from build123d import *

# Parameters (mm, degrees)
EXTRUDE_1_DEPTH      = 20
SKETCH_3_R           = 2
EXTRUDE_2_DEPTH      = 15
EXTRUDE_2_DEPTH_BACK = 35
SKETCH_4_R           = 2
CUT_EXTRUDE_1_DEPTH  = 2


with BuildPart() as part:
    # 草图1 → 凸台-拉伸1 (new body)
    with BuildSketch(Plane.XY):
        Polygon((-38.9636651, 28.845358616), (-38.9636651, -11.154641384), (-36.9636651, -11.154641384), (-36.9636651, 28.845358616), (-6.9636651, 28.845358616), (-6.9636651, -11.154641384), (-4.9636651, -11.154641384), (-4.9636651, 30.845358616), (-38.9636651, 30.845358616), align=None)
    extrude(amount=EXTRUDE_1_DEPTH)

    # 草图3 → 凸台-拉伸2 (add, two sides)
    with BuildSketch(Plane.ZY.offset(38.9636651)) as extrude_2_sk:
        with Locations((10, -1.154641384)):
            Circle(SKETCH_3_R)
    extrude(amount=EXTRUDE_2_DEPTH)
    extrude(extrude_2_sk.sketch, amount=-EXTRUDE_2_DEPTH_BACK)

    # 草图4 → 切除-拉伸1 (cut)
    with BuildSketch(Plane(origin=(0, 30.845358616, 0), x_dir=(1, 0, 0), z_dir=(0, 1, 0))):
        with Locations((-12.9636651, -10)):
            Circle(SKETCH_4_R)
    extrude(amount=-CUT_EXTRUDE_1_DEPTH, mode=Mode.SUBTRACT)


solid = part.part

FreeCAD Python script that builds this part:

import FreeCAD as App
import Part
import Sketcher


def add_polygon(sketch, points):
    """Adds a closed chain of lines whose ends are joined by coincident constraints."""
    first, n = sketch.GeometryCount, len(points)
    for a, b in zip(points, points[1:] + points[:1]):
        sketch.addGeometry(Part.LineSegment(App.Vector(*a, 0), App.Vector(*b, 0)), False)
    for i in range(n):
        sketch.addConstraint(Sketcher.Constraint("Coincident", first + i, 2, first + (i + 1) % n, 1))

doc = App.newDocument("Part")
body = doc.addObject("PartDesign::Body", "Body")

sketch1 = body.newObject("Sketcher::SketchObject", "Sketch")
sketch1.AttachmentSupport = (doc.getObject("XY_Plane"), [""])
sketch1.MapMode = "FlatFace"
add_polygon(sketch1, [(-39, -11.2), (-37, -11.2), (-37, 28.8), (-7, 28.8), (-7, -11.2), (-5, -11.2), (-5, 30.8), (-39, 30.8)])
sketch1.addConstraint([
    Sketcher.Constraint("Horizontal", 0),
    Sketcher.Constraint("Vertical", 1),
    Sketcher.Constraint("Horizontal", 2),
    Sketcher.Constraint("Vertical", 3),
    Sketcher.Constraint("Horizontal", 4),
    Sketcher.Constraint("Vertical", 5),
    Sketcher.Constraint("Horizontal", 6),
    Sketcher.Constraint("Vertical", 7),
    Sketcher.Constraint("Horizontal", 0, 2, 3, 2),
    Sketcher.Constraint("Equal", 0, 4),
    Sketcher.Constraint("DistanceX", 0, 1, 0, 2, 2.0),
    Sketcher.Constraint("DistanceX", 2, 1, 2, 2, 30.0),
    Sketcher.Constraint("DistanceY", 1, 1, 1, 2, 40.0),
    Sketcher.Constraint("DistanceY", 5, 1, 5, 2, 42.0),
    Sketcher.Constraint("DistanceY", 0, 2, -1, 1, 11.154641),
    Sketcher.Constraint("DistanceX", 0, 2, -1, 1, 36.963665),
])
pad1 = body.newObject("PartDesign::Pad", "Pad")
pad1.Profile = sketch1
pad1.Length = 20

sketch2 = body.newObject("Sketcher::SketchObject", "Sketch001")
sketch2.AttachmentSupport = (doc.getObject("YZ_Plane"), [""])
sketch2.MapMode = "FlatFace"
sketch2.AttachmentOffset = App.Placement(App.Vector(0, 0, -38.963665), App.Rotation())
sketch2.addGeometry(Part.Circle(App.Vector(-1.2, 10, 0), App.Vector(0, 0, 1), 2), False)
sketch2.addConstraint([
    Sketcher.Constraint("Diameter", 0, 4.0),
    Sketcher.Constraint("DistanceY", -1, 1, 0, 3, 10.0),
    Sketcher.Constraint("DistanceX", 0, 3, -1, 1, 1.154641),
])
pad2 = body.newObject("PartDesign::Pad", "Pad001")
pad2.Profile = sketch2
pad2.Type = "TwoLengths"
pad2.Length = 15
pad2.Length2 = 35
pad2.Reversed = True

sketch3 = body.newObject("Sketcher::SketchObject", "Sketch002")
sketch3.AttachmentSupport = (doc.getObject("XZ_Plane"), [""])
sketch3.MapMode = "FlatFace"
sketch3.AttachmentOffset = App.Placement(App.Vector(0, 0, -30.845359), App.Rotation())
sketch3.addGeometry(Part.Circle(App.Vector(-13, 10, 0), App.Vector(0, 0, 1), 2), False)
sketch3.addConstraint([
    Sketcher.Constraint("Diameter", 0, 4.0),
    Sketcher.Constraint("DistanceY", -1, 1, 0, 3, 10.0),
    Sketcher.Constraint("DistanceX", 0, 3, -1, 1, 12.963665),
])
pocket1 = body.newObject("PartDesign::Pocket", "Pocket")
pocket1.Profile = sketch3
pocket1.Length = 2
pocket1.Reversed = True

doc.recompute()
